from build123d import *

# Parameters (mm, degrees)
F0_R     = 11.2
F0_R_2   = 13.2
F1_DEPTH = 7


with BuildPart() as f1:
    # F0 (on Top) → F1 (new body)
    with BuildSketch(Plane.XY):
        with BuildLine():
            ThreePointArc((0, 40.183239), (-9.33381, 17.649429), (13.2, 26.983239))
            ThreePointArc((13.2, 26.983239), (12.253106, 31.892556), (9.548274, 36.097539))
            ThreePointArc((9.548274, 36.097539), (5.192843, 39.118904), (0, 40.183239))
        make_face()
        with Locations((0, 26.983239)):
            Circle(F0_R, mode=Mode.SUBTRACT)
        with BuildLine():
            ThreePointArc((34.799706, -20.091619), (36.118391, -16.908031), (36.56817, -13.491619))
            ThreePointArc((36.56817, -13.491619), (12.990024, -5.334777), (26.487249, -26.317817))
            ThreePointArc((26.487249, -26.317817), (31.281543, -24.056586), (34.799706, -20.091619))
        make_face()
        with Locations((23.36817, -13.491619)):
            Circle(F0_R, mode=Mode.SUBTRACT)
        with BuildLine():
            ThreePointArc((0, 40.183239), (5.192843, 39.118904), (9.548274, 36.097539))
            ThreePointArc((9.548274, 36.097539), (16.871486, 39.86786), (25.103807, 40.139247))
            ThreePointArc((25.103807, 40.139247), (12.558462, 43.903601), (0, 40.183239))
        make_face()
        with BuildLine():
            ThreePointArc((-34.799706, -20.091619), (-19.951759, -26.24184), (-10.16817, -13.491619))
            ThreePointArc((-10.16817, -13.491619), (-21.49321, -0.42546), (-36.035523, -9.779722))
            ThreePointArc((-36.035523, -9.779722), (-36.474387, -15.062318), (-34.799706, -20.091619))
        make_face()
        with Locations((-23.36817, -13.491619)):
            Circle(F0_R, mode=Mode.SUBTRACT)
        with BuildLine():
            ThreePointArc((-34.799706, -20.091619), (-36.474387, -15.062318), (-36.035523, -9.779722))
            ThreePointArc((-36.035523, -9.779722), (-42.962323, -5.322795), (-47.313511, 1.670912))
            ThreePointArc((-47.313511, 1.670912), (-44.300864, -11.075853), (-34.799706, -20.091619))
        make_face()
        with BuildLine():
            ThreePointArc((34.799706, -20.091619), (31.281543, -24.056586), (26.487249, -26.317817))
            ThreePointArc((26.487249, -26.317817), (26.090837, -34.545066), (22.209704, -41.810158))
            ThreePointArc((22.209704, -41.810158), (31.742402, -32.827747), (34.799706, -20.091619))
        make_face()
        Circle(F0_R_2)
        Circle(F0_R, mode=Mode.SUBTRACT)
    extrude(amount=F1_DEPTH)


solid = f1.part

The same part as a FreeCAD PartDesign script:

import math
import FreeCAD as App
import Part
import Sketcher
from FreeCAD import Vector
Q = App.Units.Quantity

doc = App.newDocument("Part")
body = doc.addObject("PartDesign::Body", "Body")
body.AllowCompound = True

sketch1 = body.newObject("Sketcher::SketchObject", "Sketch")
sketch1.AttachmentSupport = (doc.getObject("XY_Plane"), [""])
sketch1.MapMode = "FlatFace"
sketch1.addGeometry([
    Part.ArcOfCircle(Part.Circle(Vector(0, 26.983239, 0), Vector(0, 0, 1), 13.2), math.radians(89.999999), math.radians(360.000001)),
    Part.ArcOfCircle(Part.Circle(Vector(0, 26.983239, 0), Vector(0, 0, 1), 13.2), math.radians(0), math.radians(43.6679)),
    Part.ArcOfCircle(Part.Circle(Vector(21.590912, 21.703961, 0), Vector(0, 0, 1), 18.766998), math.radians(79.211466), math.radians(129.918124)),
    Part.ArcOfCircle(Part.Circle(Vector(12.518295, 20.982822, 0), Vector(0, 0, 1), 22.920815), math.radians(56.695629), math.radians(123.103561)),
    Part.Circle(Vector(0, 26.983239, 0), Vector(0, 0, 1), 11.2),
    Part.ArcOfCircle(Part.Circle(Vector(23.368168, -13.49162, 0), Vector(0, 0, 1), 13.200002), math.radians(-29.999992), math.radians(0.000003)),
    Part.ArcOfCircle(Part.Circle(Vector(23.36817, -13.491619, 0), Vector(0, 0, 1), 13.2), math.radians(0.000002), math.radians(283.667903)),
    Part.ArcOfCircle(Part.Circle(Vector(8.000731, -29.550259, 0), Vector(0, 0, 1), 18.766993), math.radians(-40.788542), math.radians(9.91813)),
    Part.ArcOfCircle(Part.Circle(Vector(11.912503, -21.332569, 0), Vector(0, 0, 1), 22.92082), math.radians(-63.304363), math.radians(3.103553)),
    Part.Circle(Vector(23.36817, -13.491619, 0), Vector(0, 0, 1), 11.2),
    Part.ArcOfCircle(Part.Circle(Vector(-23.36817, -13.491619, 0), Vector(0, 0, 1), 13.2), math.radians(-149.999999), math.radians(-0.000001)),
    Part.ArcOfCircle(Part.Circle(Vector(-23.36817, -13.49162, 0), Vector(0, 0, 1), 13.2), math.radians(0.000004), math.radians(163.667901)),
    Part.ArcOfCircle(Part.Circle(Vector(-29.591641, 7.846292, 0), Vector(0, 0, 1), 18.766992), math.radians(-160.788547), math.radians(-110.08187)),
    Part.ArcOfCircle(Part.Circle(Vector(-24.430801, 0.349753, 0), Vector(0, 0, 1), 22.920818), math.radians(176.695633), math.radians(243.103555)),
    Part.Circle(Vector(-23.36817, -13.491619, 0), Vector(0, 0, 1), 11.2),
    Part.Circle(Vector(0, 0, 0), Vector(0, 0, 1), 13.2),
    Part.Circle(Vector(0, 0, 0), Vector(0, 0, 1), 11.2),
], False)
sketch1.addConstraint([
    Sketcher.Constraint("Coincident", 0, 2, 1, 1),
    Sketcher.Constraint("Coincident", 1, 2, 2, 2),
    Sketcher.Constraint("Coincident", 2, 1, 3, 1),
    Sketcher.Constraint("Coincident", 3, 2, 0, 1),
    Sketcher.Constraint("Coincident", 5, 2, 6, 1),
    Sketcher.Constraint("Coincident", 6, 2, 7, 2),
    Sketcher.Constraint("Coincident", 7, 1, 8, 1),
    Sketcher.Constraint("Coincident", 8, 2, 5, 1),
    Sketcher.Constraint("Coincident", 10, 2, 11, 1),
    Sketcher.Constraint("Coincident", 11, 2, 12, 2),
    Sketcher.Constraint("Coincident", 12, 1, 13, 1),
    Sketcher.Constraint("Coincident", 13, 2, 10, 1),
    Sketcher.Constraint("Coincident", 15, 3, -1, 1),
    Sketcher.Constraint("Coincident", 16, 3, -1, 1),
    Sketcher.Constraint("Coincident", 1, 3, 0, 3),
    Sketcher.Constraint("Coincident", 4, 3, 0, 3),
    Sketcher.Constraint("Coincident", 6, 3, 5, 3),
    Sketcher.Constraint("Coincident", 9, 3, 5, 3),
    Sketcher.Constraint("Coincident", 11, 3, 10, 3),
    Sketcher.Constraint("Coincident", 14, 3, 10, 3),
    Sketcher.Constraint("PointOnObject", 0, 3, -2),
    Sketcher.Constraint("PointOnObject", 3, 2, -2),
    Sketcher.Constraint("Diameter", 4, Q("22.4 mm")),
    Sketcher.Constraint("Diameter", 9, Q("22.4 mm")),
    Sketcher.Constraint("Diameter", 14, Q("22.4 mm")),
    Sketcher.Constraint("Diameter", 15, Q("26.4 mm")),
    Sketcher.Constraint("Diameter", 16, Q("22.4 mm")),
    Sketcher.Constraint("Radius", 0, Q("13.2 mm")),
    Sketcher.Constraint("Radius", 5, Q("13.200002 mm")),
    Sketcher.Constraint("Radius", 10, Q("13.2 mm")),
    Sketcher.Constraint("Radius", 2, Q("18.766998 mm")),
    Sketcher.Constraint("DistanceY", 0, 2, 3, 2, Q("13.2 mm")),
    Sketcher.Constraint("DistanceY", 8, 2, 5, 2, Q("6.6 mm")),
    Sketcher.Constraint("DistanceY", 8, 2, 6, 3, Q("6.6 mm")),
    Sketcher.Constraint("DistanceY", 13, 2, 11, 3, Q("6.599999 mm")),
    Sketcher.Constraint("Radius", 8, Q("22.92082 mm")),
    Sketcher.Constraint("Radius", 3, Q("22.920815 mm")),
    Sketcher.Constraint("Radius", 7, Q("18.766993 mm")),
    Sketcher.Constraint("Radius", 12, Q("18.766992 mm")),
    Sketcher.Constraint("Radius", 13, Q("22.920818 mm")),
    Sketcher.Constraint("DistanceX", 13, 3, -1, 1, Q("24.430801 mm")),
    Sketcher.Constraint("DistanceX", 10, 3, 7, 3, Q("31.368901 mm")),
    Sketcher.Constraint("DistanceY", 0, 2, 1, 2, Q("9.1143 mm")),
    Sketcher.Constraint("DistanceY", 7, 1, 7, 3, Q("12.259899 mm")),
    Sketcher.Constraint("DistanceX", 8, 3, 7, 1, Q("10.297201 mm")),
    Sketcher.Constraint("DistanceY", -1, 1, 0, 3, Q("26.983239 mm")),
    Sketcher.Constraint("DistanceX", -1, 1, 2, 3, Q("21.590912 mm")),
    Sketcher.Constraint("DistanceY", -1, 1, 3, 3, Q("20.982822 mm")),
    Sketcher.Constraint("DistanceX", -1, 1, 5, 3, Q("23.368168 mm")),
    Sketcher.Constraint("DistanceY", 5, 3, -1, 1, Q("13.49162 mm")),
    Sketcher.Constraint("DistanceX", -1, 1, 7, 3, Q("8.000731 mm")),
    Sketcher.Constraint("DistanceY", 10, 3, -1, 1, Q("13.491619 mm")),
    Sketcher.Constraint("DistanceX", 12, 3, -1, 1, Q("29.591641 mm")),
    Sketcher.Constraint("DistanceY", 10, 2, -1, 1, Q("13.491619 mm")),
    Sketcher.Constraint("DistanceY", 11, 2, -1, 1, Q("9.779722 mm")),
])
pad1 = body.newObject("PartDesign::Pad", "Pad")
pad1.Profile = sketch1
pad1.Length = 7

doc.recompute()
